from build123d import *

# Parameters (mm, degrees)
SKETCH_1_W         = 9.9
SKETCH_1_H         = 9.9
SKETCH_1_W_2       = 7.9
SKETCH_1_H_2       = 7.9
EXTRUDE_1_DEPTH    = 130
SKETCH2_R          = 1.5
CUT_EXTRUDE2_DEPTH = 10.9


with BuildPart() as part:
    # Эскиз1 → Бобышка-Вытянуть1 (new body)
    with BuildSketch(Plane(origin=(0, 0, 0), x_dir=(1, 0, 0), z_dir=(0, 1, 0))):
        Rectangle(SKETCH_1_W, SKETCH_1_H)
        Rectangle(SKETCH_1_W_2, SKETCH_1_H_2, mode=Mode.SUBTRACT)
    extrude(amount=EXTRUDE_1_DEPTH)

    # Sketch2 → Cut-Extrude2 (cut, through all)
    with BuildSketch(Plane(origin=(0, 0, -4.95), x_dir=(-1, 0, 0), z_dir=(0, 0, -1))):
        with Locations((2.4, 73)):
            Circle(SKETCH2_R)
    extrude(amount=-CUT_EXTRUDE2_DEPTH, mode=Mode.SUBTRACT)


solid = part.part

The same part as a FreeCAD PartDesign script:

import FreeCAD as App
import Part
import Sketcher
Q = App.Units.Quantity

doc = App.newDocument("Part")
body = doc.addObject("PartDesign::Body", "Body")

sketch1 = body.newObject("Sketcher::SketchObject", "Sketch")
sketch1.AttachmentSupport = (doc.getObject("XZ_Plane"), [""])
sketch1.MapMode = "FlatFace"
sketch1.addGeometry([
    Part.LineSegment(App.Vector(-5, -5, 0), App.Vector(-5, 5, 0)),
    Part.LineSegment(App.Vector(-5, 5, 0), App.Vector(5, 5, 0)),
    Part.LineSegment(App.Vector(5, 5, 0), App.Vector(5, -5, 0)),
    Part.LineSegment(App.Vector(5, -5, 0), App.Vector(-5, -5, 0)),
    Part.LineSegment(App.Vector(4, 4, 0), App.Vector(-4, 4, 0)),
    Part.LineSegment(App.Vector(-4, 4, 0), App.Vector(-4, -4, 0)),
    Part.LineSegment(App.Vector(-4, -4, 0), App.Vector(4, -4, 0)),
    Part.LineSegment(App.Vector(4, -4, 0), App.Vector(4, 4, 0)),
], False)
sketch1.addConstraint([
    Sketcher.Constraint("Coincident", 0, 2, 1, 1),
    Sketcher.Constraint("Coincident", 1, 2, 2, 1),
    Sketcher.Constraint("Coincident", 2, 2, 3, 1),
    Sketcher.Constraint("Coincident", 3, 2, 0, 1),
    Sketcher.Constraint("Coincident", 4, 2, 5, 1),
    Sketcher.Constraint("Coincident", 5, 2, 6, 1),
    Sketcher.Constraint("Coincident", 6, 2, 7, 1),
    Sketcher.Constraint("Coincident", 7, 2, 4, 1),
    Sketcher.Constraint("Vertical", 0),
    Sketcher.Constraint("Horizontal", 1),
    Sketcher.Constraint("Vertical", 2),
    Sketcher.Constraint("Horizontal", 3),
    Sketcher.Constraint("Horizontal", 4),
    Sketcher.Constraint("Vertical", 5),
    Sketcher.Constraint("Horizontal", 6),
    Sketcher.Constraint("Vertical", 7),
    Sketcher.Constraint("Symmetric", 0, 2, 2, 2, -1, 1),
    Sketcher.Constraint("Symmetric", 4, 2, 6, 2, -1, 1),
    Sketcher.Constraint("Equal", 3, 0),
    Sketcher.Constraint("Equal", 6, 5),
    Sketcher.Constraint("DistanceX", 1, 1, 1, 2, Q("9.9 mm")),
    Sketcher.Constraint("DistanceX", 4, 2, 4, 1, Q("7.9 mm")),
])
pad1 = body.newObject("PartDesign::Pad", "Pad")
pad1.Profile = sketch1
pad1.Length = 130
pad1.Reversed = True

sketch2 = body.newObject("Sketcher::SketchObject", "Sketch001")
sketch2.AttachmentSupport = (doc.getObject("XY_Plane"), [""])
sketch2.MapMode = "FlatFace"
sketch2.AttachmentOffset = App.Placement(App.Vector(0, 0, -4.95), App.Rotation())
sketch2.addGeometry(Part.Circle(App.Vector(-2.4, 73, 0), App.Vector(0, 0, 1), 1.5), False)
sketch2.addConstraint([
    Sketcher.Constraint("Diameter", 0, Q("3 mm")),
    Sketcher.Constraint("DistanceY", -1, 1, 0, 3, Q("73 mm")),
    Sketcher.Constraint("DistanceX", 0, 3, -1, 1, Q("2.4 mm")),
])
pocket1 = body.newObject("PartDesign::Pocket", "Pocket")
pocket1.Profile = sketch2
pocket1.Type = "ThroughAll"
pocket1.Reversed = True

doc.recompute()
